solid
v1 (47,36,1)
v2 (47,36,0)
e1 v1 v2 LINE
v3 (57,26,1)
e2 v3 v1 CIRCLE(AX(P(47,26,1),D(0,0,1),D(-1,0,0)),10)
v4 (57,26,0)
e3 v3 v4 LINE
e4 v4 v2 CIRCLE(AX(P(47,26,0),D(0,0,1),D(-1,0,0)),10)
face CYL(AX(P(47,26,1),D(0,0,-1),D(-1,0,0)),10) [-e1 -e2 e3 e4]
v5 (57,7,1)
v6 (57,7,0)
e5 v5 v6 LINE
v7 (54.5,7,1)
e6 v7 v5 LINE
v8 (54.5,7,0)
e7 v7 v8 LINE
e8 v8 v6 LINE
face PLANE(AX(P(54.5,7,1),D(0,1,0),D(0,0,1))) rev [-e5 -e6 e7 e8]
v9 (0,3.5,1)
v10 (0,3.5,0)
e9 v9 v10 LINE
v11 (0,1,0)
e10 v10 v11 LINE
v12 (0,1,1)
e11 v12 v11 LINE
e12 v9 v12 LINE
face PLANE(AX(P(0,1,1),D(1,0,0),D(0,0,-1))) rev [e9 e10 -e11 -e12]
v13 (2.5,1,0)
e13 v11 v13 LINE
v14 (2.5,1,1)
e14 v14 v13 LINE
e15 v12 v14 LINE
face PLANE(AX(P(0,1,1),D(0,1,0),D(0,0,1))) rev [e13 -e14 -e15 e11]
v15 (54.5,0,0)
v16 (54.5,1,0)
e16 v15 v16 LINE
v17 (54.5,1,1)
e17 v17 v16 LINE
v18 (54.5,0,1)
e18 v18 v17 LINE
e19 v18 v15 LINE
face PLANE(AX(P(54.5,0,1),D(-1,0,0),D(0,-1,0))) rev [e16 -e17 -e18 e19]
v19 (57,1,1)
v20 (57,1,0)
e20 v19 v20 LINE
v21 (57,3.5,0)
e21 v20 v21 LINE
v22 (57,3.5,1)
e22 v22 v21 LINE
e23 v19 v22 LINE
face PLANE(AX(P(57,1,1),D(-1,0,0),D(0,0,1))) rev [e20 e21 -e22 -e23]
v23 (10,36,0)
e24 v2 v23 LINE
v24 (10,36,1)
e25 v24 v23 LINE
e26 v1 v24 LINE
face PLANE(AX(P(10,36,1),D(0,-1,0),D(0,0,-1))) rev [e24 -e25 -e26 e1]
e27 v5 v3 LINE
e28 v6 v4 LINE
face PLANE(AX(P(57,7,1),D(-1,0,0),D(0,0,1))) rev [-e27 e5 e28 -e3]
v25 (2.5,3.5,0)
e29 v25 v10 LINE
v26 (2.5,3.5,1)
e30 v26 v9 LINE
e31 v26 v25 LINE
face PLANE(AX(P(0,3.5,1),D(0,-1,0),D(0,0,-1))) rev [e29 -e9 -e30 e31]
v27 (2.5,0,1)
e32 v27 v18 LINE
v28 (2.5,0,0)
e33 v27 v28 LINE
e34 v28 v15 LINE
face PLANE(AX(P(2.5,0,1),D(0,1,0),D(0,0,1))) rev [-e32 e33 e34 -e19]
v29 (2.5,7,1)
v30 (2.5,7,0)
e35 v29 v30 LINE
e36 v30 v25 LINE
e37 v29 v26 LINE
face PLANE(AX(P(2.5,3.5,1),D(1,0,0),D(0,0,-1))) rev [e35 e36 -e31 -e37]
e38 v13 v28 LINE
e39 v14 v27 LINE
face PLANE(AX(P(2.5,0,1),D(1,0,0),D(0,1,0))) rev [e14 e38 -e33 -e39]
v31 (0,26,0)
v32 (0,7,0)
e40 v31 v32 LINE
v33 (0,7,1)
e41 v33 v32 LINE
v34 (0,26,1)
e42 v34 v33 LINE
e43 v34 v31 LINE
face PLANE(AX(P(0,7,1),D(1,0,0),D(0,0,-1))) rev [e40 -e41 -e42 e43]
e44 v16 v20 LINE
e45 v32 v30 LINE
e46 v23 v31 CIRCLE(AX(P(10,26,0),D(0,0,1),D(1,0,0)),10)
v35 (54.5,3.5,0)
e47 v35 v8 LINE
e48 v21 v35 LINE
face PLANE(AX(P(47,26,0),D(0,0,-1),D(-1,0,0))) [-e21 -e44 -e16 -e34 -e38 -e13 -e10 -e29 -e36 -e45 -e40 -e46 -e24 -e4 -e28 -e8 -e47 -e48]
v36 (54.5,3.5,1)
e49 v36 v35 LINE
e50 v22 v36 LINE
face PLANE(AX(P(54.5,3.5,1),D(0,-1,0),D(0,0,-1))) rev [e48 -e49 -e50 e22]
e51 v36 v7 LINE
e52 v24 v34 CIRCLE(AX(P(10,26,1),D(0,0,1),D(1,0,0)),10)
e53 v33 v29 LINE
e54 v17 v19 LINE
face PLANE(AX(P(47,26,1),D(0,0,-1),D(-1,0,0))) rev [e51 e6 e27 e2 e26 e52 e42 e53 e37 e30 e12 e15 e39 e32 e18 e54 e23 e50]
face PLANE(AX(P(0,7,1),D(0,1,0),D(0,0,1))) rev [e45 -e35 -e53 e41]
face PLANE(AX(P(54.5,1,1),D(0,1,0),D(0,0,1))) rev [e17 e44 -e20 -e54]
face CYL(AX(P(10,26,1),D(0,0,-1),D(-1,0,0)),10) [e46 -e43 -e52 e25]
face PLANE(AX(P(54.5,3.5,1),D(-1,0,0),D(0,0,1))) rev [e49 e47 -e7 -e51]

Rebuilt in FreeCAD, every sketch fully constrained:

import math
import FreeCAD as App
import Part
import Sketcher
from FreeCAD import Vector
Q = App.Units.Quantity

doc = App.newDocument("Part")
body = doc.addObject("PartDesign::Body", "Body")

# Sketch on XY plane
sketch1 = doc.addObject("Sketcher::SketchObject", "Sketch")
body.addObject(sketch1)
sketch1.AttachmentSupport = (doc.XY_Plane, [""])
sketch1.MapMode = "FlatFace"
sketch1.addGeometry(Part.LineSegment(Vector(0, 1, 0), Vector(2.5, 1, 0)), False)
sketch1.addGeometry(Part.LineSegment(Vector(2.5, 1, 0), Vector(2.5, 0, 0)), False)
sketch1.addGeometry(Part.LineSegment(Vector(2.5, 0, 0), Vector(54.5, 0, 0)), False)
sketch1.addGeometry(Part.LineSegment(Vector(54.5, 0, 0), Vector(54.5, 1, 0)), False)
sketch1.addGeometry(Part.LineSegment(Vector(54.5, 1, 0), Vector(57, 1, 0)), False)
sketch1.addGeometry(Part.LineSegment(Vector(57, 1, 0), Vector(57, 3.5, 0)), False)
sketch1.addGeometry(Part.LineSegment(Vector(57, 3.5, 0), Vector(54.5, 3.5, 0)), False)
sketch1.addGeometry(Part.LineSegment(Vector(54.5, 3.5, 0), Vector(54.5, 7, 0)), False)
sketch1.addGeometry(Part.LineSegment(Vector(54.5, 7, 0), Vector(57, 7, 0)), False)
sketch1.addGeometry(Part.LineSegment(Vector(57, 7, 0), Vector(57, 26, 0)), False)
sketch1.addGeometry(Part.ArcOfCircle(Part.Circle(Vector(47, 26, 0), Vector(0, 0, 1), 10), math.radians(0), math.radians(90)), False)
sketch1.addGeometry(Part.LineSegment(Vector(47, 36, 0), Vector(10, 36, 0)), False)
sketch1.addGeometry(Part.ArcOfCircle(Part.Circle(Vector(10, 26, 0), Vector(0, 0, 1), 10), math.radians(90), math.radians(180)), False)
sketch1.addGeometry(Part.LineSegment(Vector(0, 26, 0), Vector(0, 7, 0)), False)
sketch1.addGeometry(Part.LineSegment(Vector(0, 7, 0), Vector(2.5, 7, 0)), False)
sketch1.addGeometry(Part.LineSegment(Vector(2.5, 7, 0), Vector(2.5, 3.5, 0)), False)
sketch1.addGeometry(Part.LineSegment(Vector(2.5, 3.5, 0), Vector(0, 3.5, 0)), False)
sketch1.addGeometry(Part.LineSegment(Vector(0, 3.5, 0), Vector(0, 1, 0)), False)
sketch1.addConstraint(Sketcher.Constraint("Coincident", 0, 2, 1, 1))
sketch1.addConstraint(Sketcher.Constraint("Coincident", 1, 2, 2, 1))
sketch1.addConstraint(Sketcher.Constraint("Coincident", 2, 2, 3, 1))
sketch1.addConstraint(Sketcher.Constraint("Coincident", 3, 2, 4, 1))
sketch1.addConstraint(Sketcher.Constraint("Coincident", 4, 2, 5, 1))
sketch1.addConstraint(Sketcher.Constraint("Coincident", 5, 2, 6, 1))
sketch1.addConstraint(Sketcher.Constraint("Coincident", 6, 2, 7, 1))
sketch1.addConstraint(Sketcher.Constraint("Coincident", 7, 2, 8, 1))
sketch1.addConstraint(Sketcher.Constraint("Coincident", 8, 2, 9, 1))
sketch1.addConstraint(Sketcher.Constraint("Tangent", 9, 2, 10, 1))
sketch1.addConstraint(Sketcher.Constraint("Tangent", 10, 2, 11, 1))
sketch1.addConstraint(Sketcher.Constraint("Tangent", 11, 2, 12, 1))
sketch1.addConstraint(Sketcher.Constraint("Tangent", 12, 2, 13, 1))
sketch1.addConstraint(Sketcher.Constraint("Coincident", 13, 2, 14, 1))
sketch1.addConstraint(Sketcher.Constraint("Coincident", 14, 2, 15, 1))
sketch1.addConstraint(Sketcher.Constraint("Coincident", 15, 2, 16, 1))
sketch1.addConstraint(Sketcher.Constraint("Coincident", 16, 2, 17, 1))
sketch1.addConstraint(Sketcher.Constraint("Coincident", 17, 2, 0, 1))
sketch1.addConstraint(Sketcher.Constraint("Horizontal", 0))
sketch1.addConstraint(Sketcher.Constraint("Vertical", 1))
sketch1.addConstraint(Sketcher.Constraint("Horizontal", 2))
sketch1.addConstraint(Sketcher.Constraint("Vertical", 3))
sketch1.addConstraint(Sketcher.Constraint("Horizontal", 4))
sketch1.addConstraint(Sketcher.Constraint("Vertical", 5))
sketch1.addConstraint(Sketcher.Constraint("Horizontal", 6))
sketch1.addConstraint(Sketcher.Constraint("Vertical", 7))
sketch1.addConstraint(Sketcher.Constraint("Horizontal", 8))
sketch1.addConstraint(Sketcher.Constraint("Vertical", 9))
sketch1.addConstraint(Sketcher.Constraint("Horizontal", 11))
sketch1.addConstraint(Sketcher.Constraint("Vertical", 13))
sketch1.addConstraint(Sketcher.Constraint("Horizontal", 14))
sketch1.addConstraint(Sketcher.Constraint("Vertical", 15))
sketch1.addConstraint(Sketcher.Constraint("Horizontal", 16))
sketch1.addConstraint(Sketcher.Constraint("Vertical", 17))
sketch1.addConstraint(Sketcher.Constraint("Equal", 10, 12))
sketch1.addConstraint(Sketcher.Constraint("PointOnObject", 1, 2, -1))
sketch1.addConstraint(Sketcher.Constraint("PointOnObject", 12, 2, -2))
sketch1.addConstraint(Sketcher.Constraint("PointOnObject", 16, 2, -2))
sketch1.addConstraint(Sketcher.Constraint("Horizontal", 0, 2, 3, 2))
sketch1.addConstraint(Sketcher.Constraint("Horizontal", 8, 2, 13, 2))
sketch1.addConstraint(Sketcher.Constraint("Horizontal", 6, 2, 15, 2))
sketch1.addConstraint(Sketcher.Constraint("Vertical", 3, 2, 6, 2))
sketch1.addConstraint(Sketcher.Constraint("Vertical", 5, 2, 8, 2))
sketch1.addConstraint(Sketcher.Constraint("Vertical", 1, 2, 14, 2))
sketch1.addConstraint(Sketcher.Constraint("Equal", 0, 4))
sketch1.addConstraint(Sketcher.Constraint("Equal", 16, 5))
sketch1.addConstraint(Sketcher.Constraint("Radius", 10, Q("10 mm")))
sketch1.addConstraint(Sketcher.Constraint("DistanceX", 2, 1, 2, 2, Q("52 mm")))
sketch1.addConstraint(Sketcher.Constraint("DistanceX", 11, 2, 11, 1, Q("37 mm")))
sketch1.addConstraint(Sketcher.Constraint("DistanceY", 1, 2, 1, 1, Q("1 mm")))
sketch1.addConstraint(Sketcher.Constraint("DistanceY", 9, 1, 9, 2, Q("19 mm")))
sketch1.addConstraint(Sketcher.Constraint("DistanceY", 7, 1, 7, 2, Q("3.5 mm")))
pad1 = doc.addObject("PartDesign::Pad", "Pad")
body.addObject(pad1)
pad1.Profile = sketch1
pad1.Length = 1

doc.recompute()
